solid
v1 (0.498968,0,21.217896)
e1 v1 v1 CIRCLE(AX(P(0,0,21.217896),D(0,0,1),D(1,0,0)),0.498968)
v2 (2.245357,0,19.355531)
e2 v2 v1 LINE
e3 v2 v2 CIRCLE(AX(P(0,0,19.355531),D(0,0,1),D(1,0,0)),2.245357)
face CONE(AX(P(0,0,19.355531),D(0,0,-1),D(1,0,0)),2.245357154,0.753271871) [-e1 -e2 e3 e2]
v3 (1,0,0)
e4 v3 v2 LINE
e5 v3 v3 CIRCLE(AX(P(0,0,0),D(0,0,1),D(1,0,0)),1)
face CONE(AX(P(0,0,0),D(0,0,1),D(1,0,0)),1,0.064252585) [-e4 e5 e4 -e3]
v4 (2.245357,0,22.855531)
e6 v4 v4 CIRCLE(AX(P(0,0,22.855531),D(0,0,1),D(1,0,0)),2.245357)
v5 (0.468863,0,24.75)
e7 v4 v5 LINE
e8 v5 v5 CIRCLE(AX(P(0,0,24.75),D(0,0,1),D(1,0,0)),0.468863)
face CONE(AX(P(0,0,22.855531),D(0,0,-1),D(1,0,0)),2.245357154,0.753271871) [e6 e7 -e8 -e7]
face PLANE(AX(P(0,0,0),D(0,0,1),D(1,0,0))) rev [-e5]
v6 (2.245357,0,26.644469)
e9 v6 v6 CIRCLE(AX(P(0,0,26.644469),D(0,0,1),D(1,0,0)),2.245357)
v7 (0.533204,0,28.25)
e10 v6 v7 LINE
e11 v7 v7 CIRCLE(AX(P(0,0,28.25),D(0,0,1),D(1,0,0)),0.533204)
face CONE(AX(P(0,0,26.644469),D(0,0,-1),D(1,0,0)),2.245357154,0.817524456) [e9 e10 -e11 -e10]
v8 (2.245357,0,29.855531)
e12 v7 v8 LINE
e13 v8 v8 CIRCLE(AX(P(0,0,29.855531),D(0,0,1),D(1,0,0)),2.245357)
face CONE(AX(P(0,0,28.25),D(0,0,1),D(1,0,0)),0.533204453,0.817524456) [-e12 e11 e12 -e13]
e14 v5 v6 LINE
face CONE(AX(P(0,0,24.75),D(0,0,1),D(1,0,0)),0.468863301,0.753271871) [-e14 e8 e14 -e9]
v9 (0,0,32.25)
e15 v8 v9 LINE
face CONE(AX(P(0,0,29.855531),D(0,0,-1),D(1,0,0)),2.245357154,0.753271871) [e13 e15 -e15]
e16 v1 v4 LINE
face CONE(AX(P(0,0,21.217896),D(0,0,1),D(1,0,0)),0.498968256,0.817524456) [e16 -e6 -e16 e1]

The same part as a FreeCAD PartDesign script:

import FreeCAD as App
import Part
import Sketcher

V = App.Vector
Q = App.Units.Quantity

doc = App.newDocument("Part")
params = doc.addObject("Spreadsheet::Sheet", "Params")
for row, (alias, value) in enumerate([
    ("sketch1_width", "1 mm"),
    ("sketch1_height", "32.25 mm"),
    ("revolution_angle", "360 deg"),
], start=1):
    params.set(f"A{row}", alias)
    params.set(f"B{row}", "=" + value)
    params.setAlias(f"B{row}", alias)

body = doc.addObject("PartDesign::Body", "Body")

sketch1 = body.newObject("Sketcher::SketchObject", "Sketch")
sketch1.AttachmentSupport = (doc.getObject("XZ_Plane"), [""])
sketch1.MapMode = "FlatFace"
sketch1.addGeometry([
    Part.LineSegment(V(0.5, 28.2, 0), V(2.2, 29.9, 0)),
    Part.LineSegment(V(2.2, 29.9, 0), V(0, 32.2, 0)),
    Part.LineSegment(V(0, 32.2, 0), V(0, 0, 0)),
    Part.LineSegment(V(0, 0, 0), V(1, 0, 0)),
    Part.LineSegment(V(1, 0, 0), V(2.2, 19.4, 0)),
    Part.LineSegment(V(2.2, 19.4, 0), V(0.5, 21.2, 0)),
    Part.LineSegment(V(0.5, 21.2, 0), V(2.2, 22.9, 0)),
    Part.LineSegment(V(2.2, 22.9, 0), V(0.5, 24.8, 0)),
    Part.LineSegment(V(0.5, 24.8, 0), V(2.2, 26.6, 0)),
    Part.LineSegment(V(2.2, 26.6, 0), V(0.5, 28.2, 0)),
], False)
sketch1.addConstraint([
    Sketcher.Constraint("Coincident", 0, 2, 1, 1),
    Sketcher.Constraint("Coincident", 1, 2, 2, 1),
    Sketcher.Constraint("Coincident", 2, 2, 3, 1),
    Sketcher.Constraint("Coincident", 3, 2, 4, 1),
    Sketcher.Constraint("Coincident", 4, 2, 5, 1),
    Sketcher.Constraint("Coincident", 5, 2, 6, 1),
    Sketcher.Constraint("Coincident", 6, 2, 7, 1),
    Sketcher.Constraint("Coincident", 7, 2, 8, 1),
    Sketcher.Constraint("Coincident", 8, 2, 9, 1),
    Sketcher.Constraint("Coincident", 9, 2, 0, 1),
    Sketcher.Constraint("Vertical", 2),
    Sketcher.Constraint("Horizontal", 3),
    Sketcher.Constraint("Coincident", 2, 2, -1, 1),
    Sketcher.Constraint("Perpendicular", 0, 1),
    Sketcher.Constraint("Parallel", 1, 5),
    Sketcher.Constraint("Perpendicular", 5, 6),
    Sketcher.Constraint("Perpendicular", 6, 7),
    Sketcher.Constraint("Perpendicular", 8, 9),
    Sketcher.Constraint("Vertical", 0, 2, 4, 2),
    Sketcher.Constraint("Vertical", 4, 2, 6, 2),
    Sketcher.Constraint("Vertical", 6, 2, 8, 2),
    Sketcher.Constraint("Equal", 7, 8),
    Sketcher.Constraint("DistanceX", 3, 1, 3, 2, Q("1 mm")),
    Sketcher.Constraint("DistanceY", 6, 2, 0, 2, Q("7 mm")),
    Sketcher.Constraint("DistanceY", 9, 2, 1, 2, Q("4 mm")),
    Sketcher.Constraint("DistanceY", 2, 2, 2, 1, Q("32.25 mm")),
    Sketcher.Constraint("DistanceY", 4, 2, 0, 2, Q("10.5 mm")),
    Sketcher.Constraint("Distance", 6, Q("2.394102 mm")),
    Sketcher.Constraint("DistanceY", -1, 1, 0, 2, Q("29.855531 mm")),
])
sketch1.setExpression("Constraints[22]", "Params.sketch1_width")
sketch1.setExpression("Constraints[25]", "Params.sketch1_height")
revolution = body.newObject("PartDesign::Revolution", "Revolution")
revolution.Profile = sketch1
revolution.ReferenceAxis = (sketch1, ["V_Axis"])
revolution.setExpression("Angle", "Params.revolution_angle")

doc.recompute()
